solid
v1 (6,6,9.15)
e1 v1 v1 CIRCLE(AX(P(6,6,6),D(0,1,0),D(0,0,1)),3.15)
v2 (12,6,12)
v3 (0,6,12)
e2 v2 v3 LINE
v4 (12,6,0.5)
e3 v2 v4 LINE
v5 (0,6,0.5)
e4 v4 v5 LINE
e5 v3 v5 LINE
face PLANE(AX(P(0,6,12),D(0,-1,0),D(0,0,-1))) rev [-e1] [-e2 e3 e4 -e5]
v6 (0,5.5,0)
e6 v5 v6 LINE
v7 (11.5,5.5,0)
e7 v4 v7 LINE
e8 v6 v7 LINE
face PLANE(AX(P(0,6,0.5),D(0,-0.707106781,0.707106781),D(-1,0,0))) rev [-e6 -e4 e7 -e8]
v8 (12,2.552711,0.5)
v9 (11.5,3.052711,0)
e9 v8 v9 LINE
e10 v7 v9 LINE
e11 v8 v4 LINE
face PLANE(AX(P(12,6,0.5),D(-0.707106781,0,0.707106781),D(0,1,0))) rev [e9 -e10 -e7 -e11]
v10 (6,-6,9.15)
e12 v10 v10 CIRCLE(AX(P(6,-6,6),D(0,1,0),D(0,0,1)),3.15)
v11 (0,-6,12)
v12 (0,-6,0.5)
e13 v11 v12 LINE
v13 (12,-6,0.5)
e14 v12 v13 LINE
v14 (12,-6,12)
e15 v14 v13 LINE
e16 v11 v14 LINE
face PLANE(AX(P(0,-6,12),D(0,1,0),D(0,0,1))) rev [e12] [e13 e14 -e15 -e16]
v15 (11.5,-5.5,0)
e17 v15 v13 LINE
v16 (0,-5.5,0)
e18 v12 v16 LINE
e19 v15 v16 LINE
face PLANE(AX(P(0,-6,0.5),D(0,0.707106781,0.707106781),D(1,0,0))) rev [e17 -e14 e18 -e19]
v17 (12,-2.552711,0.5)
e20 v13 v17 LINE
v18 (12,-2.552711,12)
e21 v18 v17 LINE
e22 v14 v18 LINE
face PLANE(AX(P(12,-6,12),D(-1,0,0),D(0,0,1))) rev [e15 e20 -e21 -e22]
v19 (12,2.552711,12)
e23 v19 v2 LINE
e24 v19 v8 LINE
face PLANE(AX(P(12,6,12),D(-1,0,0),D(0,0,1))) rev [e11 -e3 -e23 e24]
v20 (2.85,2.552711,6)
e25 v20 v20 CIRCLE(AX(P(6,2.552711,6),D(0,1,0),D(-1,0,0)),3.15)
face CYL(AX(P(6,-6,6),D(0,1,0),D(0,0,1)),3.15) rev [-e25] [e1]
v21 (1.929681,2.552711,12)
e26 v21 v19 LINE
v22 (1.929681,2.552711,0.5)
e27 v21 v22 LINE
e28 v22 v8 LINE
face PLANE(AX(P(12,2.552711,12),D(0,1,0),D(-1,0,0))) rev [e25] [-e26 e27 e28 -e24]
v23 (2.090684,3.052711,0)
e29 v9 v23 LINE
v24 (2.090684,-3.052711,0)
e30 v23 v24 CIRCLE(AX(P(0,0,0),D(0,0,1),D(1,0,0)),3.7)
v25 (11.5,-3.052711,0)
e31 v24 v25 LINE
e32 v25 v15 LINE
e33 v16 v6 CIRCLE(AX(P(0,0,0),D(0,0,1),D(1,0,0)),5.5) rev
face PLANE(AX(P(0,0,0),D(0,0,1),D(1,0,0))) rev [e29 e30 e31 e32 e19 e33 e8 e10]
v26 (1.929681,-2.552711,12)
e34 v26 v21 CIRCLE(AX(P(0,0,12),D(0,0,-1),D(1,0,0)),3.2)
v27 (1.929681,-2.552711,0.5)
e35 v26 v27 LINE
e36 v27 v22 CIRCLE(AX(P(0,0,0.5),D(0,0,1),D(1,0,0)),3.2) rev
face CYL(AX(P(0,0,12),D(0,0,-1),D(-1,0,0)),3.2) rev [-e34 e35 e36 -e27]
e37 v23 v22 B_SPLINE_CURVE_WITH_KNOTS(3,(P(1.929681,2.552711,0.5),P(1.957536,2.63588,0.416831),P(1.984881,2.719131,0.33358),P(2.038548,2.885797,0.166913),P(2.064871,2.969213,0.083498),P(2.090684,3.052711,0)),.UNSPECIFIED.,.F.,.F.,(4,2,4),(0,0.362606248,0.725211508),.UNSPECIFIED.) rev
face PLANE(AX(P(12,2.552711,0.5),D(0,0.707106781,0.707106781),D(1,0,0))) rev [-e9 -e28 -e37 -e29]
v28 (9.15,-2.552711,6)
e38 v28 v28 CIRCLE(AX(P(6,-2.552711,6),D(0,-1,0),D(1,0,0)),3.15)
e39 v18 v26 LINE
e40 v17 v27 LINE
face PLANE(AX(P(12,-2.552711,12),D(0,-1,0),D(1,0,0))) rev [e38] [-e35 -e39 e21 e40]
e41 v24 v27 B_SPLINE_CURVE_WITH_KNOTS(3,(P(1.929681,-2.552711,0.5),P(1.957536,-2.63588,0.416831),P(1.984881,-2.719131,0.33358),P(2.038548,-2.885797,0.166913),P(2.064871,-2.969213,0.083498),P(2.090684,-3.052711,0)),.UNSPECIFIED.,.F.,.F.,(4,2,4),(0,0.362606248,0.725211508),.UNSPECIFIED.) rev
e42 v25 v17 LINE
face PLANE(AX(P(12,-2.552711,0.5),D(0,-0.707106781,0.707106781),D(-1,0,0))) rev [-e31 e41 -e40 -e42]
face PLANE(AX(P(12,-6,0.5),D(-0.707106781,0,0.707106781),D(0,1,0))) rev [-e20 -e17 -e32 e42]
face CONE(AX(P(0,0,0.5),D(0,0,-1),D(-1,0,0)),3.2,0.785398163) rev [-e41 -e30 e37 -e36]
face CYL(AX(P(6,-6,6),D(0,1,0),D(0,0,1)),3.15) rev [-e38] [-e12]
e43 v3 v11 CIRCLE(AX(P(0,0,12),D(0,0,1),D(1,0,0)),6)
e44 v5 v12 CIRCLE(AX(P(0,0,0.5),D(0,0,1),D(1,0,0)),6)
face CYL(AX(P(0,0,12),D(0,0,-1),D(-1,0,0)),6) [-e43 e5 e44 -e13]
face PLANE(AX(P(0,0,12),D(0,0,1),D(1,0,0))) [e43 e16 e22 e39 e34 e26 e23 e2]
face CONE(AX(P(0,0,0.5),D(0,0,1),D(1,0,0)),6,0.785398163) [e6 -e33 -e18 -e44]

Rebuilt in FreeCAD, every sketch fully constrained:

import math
import FreeCAD as App
import Part
import Sketcher
from FreeCAD import Vector


def edges_at(feature, points):
    """Names of the edges that pass closest to the given points."""
    edges = feature.Shape.Edges
    near = lambda p: min(range(len(edges)), key=lambda i: edges[i].distToShape(Part.Vertex(*p))[0])
    return sorted({f"Edge{near(p) + 1}" for p in points})

doc = App.newDocument("Part")
body = doc.addObject("PartDesign::Body", "Body")

sketch1 = body.newObject("Sketcher::SketchObject", "Sketch")
sketch1.AttachmentSupport = (doc.getObject("XY_Plane"), [""])
sketch1.MapMode = "FlatFace"
sketch1.addGeometry([
    Part.LineSegment(Vector(12, 6, 0), Vector(0, 6, 0)),
    Part.ArcOfCircle(Part.Circle(Vector(0, 0, 0), Vector(0, 0, 1), 6), math.radians(90), math.radians(270)),
    Part.LineSegment(Vector(0, -6, 0), Vector(12, -6, 0)),
    Part.LineSegment(Vector(12, -6, 0), Vector(12, -2.6, 0)),
    Part.LineSegment(Vector(12, -2.6, 0), Vector(1.9, -2.6, 0)),
    Part.ArcOfCircle(Part.Circle(Vector(0, 0, 0), Vector(0, 0, 1), 3.2), math.radians(53), math.radians(307)),
    Part.LineSegment(Vector(1.9, 2.6, 0), Vector(12, 2.6, 0)),
    Part.LineSegment(Vector(12, 2.6, 0), Vector(12, 6, 0)),
], False)
sketch1.addConstraint([
    Sketcher.Constraint("Tangent", 0, 2, 1, 1),
    Sketcher.Constraint("Tangent", 1, 2, 2, 1),
    Sketcher.Constraint("Coincident", 2, 2, 3, 1),
    Sketcher.Constraint("Coincident", 3, 2, 4, 1),
    Sketcher.Constraint("Coincident", 4, 2, 5, 2),
    Sketcher.Constraint("Coincident", 5, 1, 6, 1),
    Sketcher.Constraint("Coincident", 6, 2, 7, 1),
    Sketcher.Constraint("Coincident", 7, 2, 0, 1),
    Sketcher.Constraint("Horizontal", 0),
    Sketcher.Constraint("Horizontal", 2),
    Sketcher.Constraint("Vertical", 3),
    Sketcher.Constraint("Horizontal", 4),
    Sketcher.Constraint("Horizontal", 6),
    Sketcher.Constraint("Vertical", 7),
    Sketcher.Constraint("Coincident", 1, 3, -1, 1),
    Sketcher.Constraint("Coincident", 5, 3, -1, 1),
    Sketcher.Constraint("Symmetric", 3, 2, 6, 2, -1),
    Sketcher.Constraint("Radius", 1, 6.0),
    Sketcher.Constraint("Radius", 5, 3.2),
    Sketcher.Constraint("DistanceX", 0, 2, 0, 1, 12.0),
    Sketcher.Constraint("DistanceX", 4, 2, 4, 1, 10.070319),
])
pad1 = body.newObject("PartDesign::Pad", "Pad")
pad1.Profile = sketch1
pad1.Length = 12

sketch2 = body.newObject("Sketcher::SketchObject", "Sketch001")
sketch2.AttachmentSupport = (doc.getObject("XZ_Plane"), [""])
sketch2.MapMode = "FlatFace"
sketch2.addGeometry(Part.Circle(Vector(6, 6, 0), Vector(0, 0, 1), 3.1), False)
sketch2.addConstraint([
    Sketcher.Constraint("Diameter", 0, 6.3),
    Sketcher.Constraint("DistanceX", -1, 1, 0, 3, 6.0),
    Sketcher.Constraint("DistanceY", -1, 1, 0, 3, 6.0),
])
pocket1 = body.newObject("PartDesign::Pocket", "Pocket")
pocket1.Profile = sketch2
pocket1.Type = "ThroughAll"
pocket1.Midplane = True
doc.recompute()

chamfer = body.newObject("PartDesign::Chamfer", "Chamfer")
chamfer.Base = (pocket1, edges_at(pocket1, [
    (6.965, 2.553, 0),
    (-3.2, 0, 0),
    (6.965, -2.553, 0),
    (12, -4.276, 0),
    (6, -6, 0),
    (-6, 0, 0),
    (6, 6, 0),
    (12, 4.276, 0),
]))
chamfer.Size = 0.5

doc.recompute()
